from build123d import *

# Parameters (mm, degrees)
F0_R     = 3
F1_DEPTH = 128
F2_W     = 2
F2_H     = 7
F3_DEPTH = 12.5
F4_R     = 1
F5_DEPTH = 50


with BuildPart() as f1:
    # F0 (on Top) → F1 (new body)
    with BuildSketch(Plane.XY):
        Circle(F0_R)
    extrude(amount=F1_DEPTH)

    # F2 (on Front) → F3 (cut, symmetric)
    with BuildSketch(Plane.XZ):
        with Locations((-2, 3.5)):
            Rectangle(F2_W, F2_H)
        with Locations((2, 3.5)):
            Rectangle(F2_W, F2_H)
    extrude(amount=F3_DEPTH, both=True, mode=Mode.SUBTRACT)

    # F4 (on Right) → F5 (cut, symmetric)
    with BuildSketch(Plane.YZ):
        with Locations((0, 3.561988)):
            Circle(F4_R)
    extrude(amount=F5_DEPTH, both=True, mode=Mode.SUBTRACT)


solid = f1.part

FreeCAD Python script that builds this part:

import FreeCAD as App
import Part
import Sketcher
from FreeCAD import Vector

doc = App.newDocument("Part")
body = doc.addObject("PartDesign::Body", "Body")

# Sketch on XY plane
sketch1 = doc.addObject("Sketcher::SketchObject", "Sketch")
body.addObject(sketch1)
sketch1.AttachmentSupport = (doc.XY_Plane, [""])
sketch1.MapMode = "FlatFace"
sketch1.addGeometry(Part.Circle(Vector(0, 0, 0), Vector(0, 0, 1), 3), False)
sketch1.addConstraint(Sketcher.Constraint("Coincident", 0, 3, -1, 1))
sketch1.addConstraint(Sketcher.Constraint("Diameter", 0, 6.0))
pad1 = doc.addObject("PartDesign::Pad", "Pad")
body.addObject(pad1)
pad1.Profile = sketch1
pad1.Length = 128

# Sketch on XZ plane
sketch2 = doc.addObject("Sketcher::SketchObject", "Sketch001")
body.addObject(sketch2)
sketch2.AttachmentSupport = (doc.XZ_Plane, [""])
sketch2.MapMode = "FlatFace"
sketch2.addGeometry(Part.LineSegment(Vector(-3, 7, 0), Vector(-3, 0, 0)), False)
sketch2.addGeometry(Part.LineSegment(Vector(-3, 0, 0), Vector(-1, 0, 0)), False)
sketch2.addGeometry(Part.LineSegment(Vector(-1, 0, 0), Vector(-1, 7, 0)), False)
sketch2.addGeometry(Part.LineSegment(Vector(-1, 7, 0), Vector(-3, 7, 0)), False)
sketch2.addGeometry(Part.LineSegment(Vector(1, 7, 0), Vector(1, 0, 0)), False)
sketch2.addGeometry(Part.LineSegment(Vector(1, 0, 0), Vector(3, 0, 0)), False)
sketch2.addGeometry(Part.LineSegment(Vector(3, 0, 0), Vector(3, 7, 0)), False)
sketch2.addGeometry(Part.LineSegment(Vector(3, 7, 0), Vector(1, 7, 0)), False)
sketch2.addConstraint(Sketcher.Constraint("Coincident", 0, 2, 1, 1))
sketch2.addConstraint(Sketcher.Constraint("Coincident", 1, 2, 2, 1))
sketch2.addConstraint(Sketcher.Constraint("Coincident", 2, 2, 3, 1))
sketch2.addConstraint(Sketcher.Constraint("Coincident", 3, 2, 0, 1))
sketch2.addConstraint(Sketcher.Constraint("Coincident", 4, 2, 5, 1))
sketch2.addConstraint(Sketcher.Constraint("Coincident", 5, 2, 6, 1))
sketch2.addConstraint(Sketcher.Constraint("Coincident", 6, 2, 7, 1))
sketch2.addConstraint(Sketcher.Constraint("Coincident", 7, 2, 4, 1))
sketch2.addConstraint(Sketcher.Constraint("Vertical", 0))
sketch2.addConstraint(Sketcher.Constraint("Horizontal", 1))
sketch2.addConstraint(Sketcher.Constraint("Vertical", 2))
sketch2.addConstraint(Sketcher.Constraint("Horizontal", 3))
sketch2.addConstraint(Sketcher.Constraint("Vertical", 4))
sketch2.addConstraint(Sketcher.Constraint("Horizontal", 5))
sketch2.addConstraint(Sketcher.Constraint("Vertical", 6))
sketch2.addConstraint(Sketcher.Constraint("Horizontal", 7))
sketch2.addConstraint(Sketcher.Constraint("Symmetric", 1, 2, 4, 2, -1, 1))
sketch2.addConstraint(Sketcher.Constraint("Symmetric", 0, 2, 5, 2, -2))
sketch2.addConstraint(Sketcher.Constraint("Horizontal", 3, 2, 6, 2))
sketch2.addConstraint(Sketcher.Constraint("DistanceX", 1, 1, 1, 2, 2.0))
sketch2.addConstraint(Sketcher.Constraint("DistanceY", 0, 2, 0, 1, 7.0))
sketch2.addConstraint(Sketcher.Constraint("DistanceX", 0, 2, -1, 1, 3.0))
pocket1 = doc.addObject("PartDesign::Pocket", "Pocket")
body.addObject(pocket1)
pocket1.Profile = sketch2
pocket1.Length = 25
pocket1.Midplane = True

# Sketch on YZ plane
sketch3 = doc.addObject("Sketcher::SketchObject", "Sketch002")
body.addObject(sketch3)
sketch3.AttachmentSupport = (doc.YZ_Plane, [""])
sketch3.MapMode = "FlatFace"
sketch3.addGeometry(Part.Circle(Vector(0, 3.561988, 0), Vector(0, 0, 1), 1), False)
sketch3.addConstraint(Sketcher.Constraint("PointOnObject", 0, 3, -2))
sketch3.addConstraint(Sketcher.Constraint("Diameter", 0, 2.0))
sketch3.addConstraint(Sketcher.Constraint("DistanceY", -1, 1, 0, 3, 3.561988))
pocket2 = doc.addObject("PartDesign::Pocket", "Pocket001")
body.addObject(pocket2)
pocket2.Profile = sketch3
pocket2.Length = 100
pocket2.Midplane = True

doc.recompute()
